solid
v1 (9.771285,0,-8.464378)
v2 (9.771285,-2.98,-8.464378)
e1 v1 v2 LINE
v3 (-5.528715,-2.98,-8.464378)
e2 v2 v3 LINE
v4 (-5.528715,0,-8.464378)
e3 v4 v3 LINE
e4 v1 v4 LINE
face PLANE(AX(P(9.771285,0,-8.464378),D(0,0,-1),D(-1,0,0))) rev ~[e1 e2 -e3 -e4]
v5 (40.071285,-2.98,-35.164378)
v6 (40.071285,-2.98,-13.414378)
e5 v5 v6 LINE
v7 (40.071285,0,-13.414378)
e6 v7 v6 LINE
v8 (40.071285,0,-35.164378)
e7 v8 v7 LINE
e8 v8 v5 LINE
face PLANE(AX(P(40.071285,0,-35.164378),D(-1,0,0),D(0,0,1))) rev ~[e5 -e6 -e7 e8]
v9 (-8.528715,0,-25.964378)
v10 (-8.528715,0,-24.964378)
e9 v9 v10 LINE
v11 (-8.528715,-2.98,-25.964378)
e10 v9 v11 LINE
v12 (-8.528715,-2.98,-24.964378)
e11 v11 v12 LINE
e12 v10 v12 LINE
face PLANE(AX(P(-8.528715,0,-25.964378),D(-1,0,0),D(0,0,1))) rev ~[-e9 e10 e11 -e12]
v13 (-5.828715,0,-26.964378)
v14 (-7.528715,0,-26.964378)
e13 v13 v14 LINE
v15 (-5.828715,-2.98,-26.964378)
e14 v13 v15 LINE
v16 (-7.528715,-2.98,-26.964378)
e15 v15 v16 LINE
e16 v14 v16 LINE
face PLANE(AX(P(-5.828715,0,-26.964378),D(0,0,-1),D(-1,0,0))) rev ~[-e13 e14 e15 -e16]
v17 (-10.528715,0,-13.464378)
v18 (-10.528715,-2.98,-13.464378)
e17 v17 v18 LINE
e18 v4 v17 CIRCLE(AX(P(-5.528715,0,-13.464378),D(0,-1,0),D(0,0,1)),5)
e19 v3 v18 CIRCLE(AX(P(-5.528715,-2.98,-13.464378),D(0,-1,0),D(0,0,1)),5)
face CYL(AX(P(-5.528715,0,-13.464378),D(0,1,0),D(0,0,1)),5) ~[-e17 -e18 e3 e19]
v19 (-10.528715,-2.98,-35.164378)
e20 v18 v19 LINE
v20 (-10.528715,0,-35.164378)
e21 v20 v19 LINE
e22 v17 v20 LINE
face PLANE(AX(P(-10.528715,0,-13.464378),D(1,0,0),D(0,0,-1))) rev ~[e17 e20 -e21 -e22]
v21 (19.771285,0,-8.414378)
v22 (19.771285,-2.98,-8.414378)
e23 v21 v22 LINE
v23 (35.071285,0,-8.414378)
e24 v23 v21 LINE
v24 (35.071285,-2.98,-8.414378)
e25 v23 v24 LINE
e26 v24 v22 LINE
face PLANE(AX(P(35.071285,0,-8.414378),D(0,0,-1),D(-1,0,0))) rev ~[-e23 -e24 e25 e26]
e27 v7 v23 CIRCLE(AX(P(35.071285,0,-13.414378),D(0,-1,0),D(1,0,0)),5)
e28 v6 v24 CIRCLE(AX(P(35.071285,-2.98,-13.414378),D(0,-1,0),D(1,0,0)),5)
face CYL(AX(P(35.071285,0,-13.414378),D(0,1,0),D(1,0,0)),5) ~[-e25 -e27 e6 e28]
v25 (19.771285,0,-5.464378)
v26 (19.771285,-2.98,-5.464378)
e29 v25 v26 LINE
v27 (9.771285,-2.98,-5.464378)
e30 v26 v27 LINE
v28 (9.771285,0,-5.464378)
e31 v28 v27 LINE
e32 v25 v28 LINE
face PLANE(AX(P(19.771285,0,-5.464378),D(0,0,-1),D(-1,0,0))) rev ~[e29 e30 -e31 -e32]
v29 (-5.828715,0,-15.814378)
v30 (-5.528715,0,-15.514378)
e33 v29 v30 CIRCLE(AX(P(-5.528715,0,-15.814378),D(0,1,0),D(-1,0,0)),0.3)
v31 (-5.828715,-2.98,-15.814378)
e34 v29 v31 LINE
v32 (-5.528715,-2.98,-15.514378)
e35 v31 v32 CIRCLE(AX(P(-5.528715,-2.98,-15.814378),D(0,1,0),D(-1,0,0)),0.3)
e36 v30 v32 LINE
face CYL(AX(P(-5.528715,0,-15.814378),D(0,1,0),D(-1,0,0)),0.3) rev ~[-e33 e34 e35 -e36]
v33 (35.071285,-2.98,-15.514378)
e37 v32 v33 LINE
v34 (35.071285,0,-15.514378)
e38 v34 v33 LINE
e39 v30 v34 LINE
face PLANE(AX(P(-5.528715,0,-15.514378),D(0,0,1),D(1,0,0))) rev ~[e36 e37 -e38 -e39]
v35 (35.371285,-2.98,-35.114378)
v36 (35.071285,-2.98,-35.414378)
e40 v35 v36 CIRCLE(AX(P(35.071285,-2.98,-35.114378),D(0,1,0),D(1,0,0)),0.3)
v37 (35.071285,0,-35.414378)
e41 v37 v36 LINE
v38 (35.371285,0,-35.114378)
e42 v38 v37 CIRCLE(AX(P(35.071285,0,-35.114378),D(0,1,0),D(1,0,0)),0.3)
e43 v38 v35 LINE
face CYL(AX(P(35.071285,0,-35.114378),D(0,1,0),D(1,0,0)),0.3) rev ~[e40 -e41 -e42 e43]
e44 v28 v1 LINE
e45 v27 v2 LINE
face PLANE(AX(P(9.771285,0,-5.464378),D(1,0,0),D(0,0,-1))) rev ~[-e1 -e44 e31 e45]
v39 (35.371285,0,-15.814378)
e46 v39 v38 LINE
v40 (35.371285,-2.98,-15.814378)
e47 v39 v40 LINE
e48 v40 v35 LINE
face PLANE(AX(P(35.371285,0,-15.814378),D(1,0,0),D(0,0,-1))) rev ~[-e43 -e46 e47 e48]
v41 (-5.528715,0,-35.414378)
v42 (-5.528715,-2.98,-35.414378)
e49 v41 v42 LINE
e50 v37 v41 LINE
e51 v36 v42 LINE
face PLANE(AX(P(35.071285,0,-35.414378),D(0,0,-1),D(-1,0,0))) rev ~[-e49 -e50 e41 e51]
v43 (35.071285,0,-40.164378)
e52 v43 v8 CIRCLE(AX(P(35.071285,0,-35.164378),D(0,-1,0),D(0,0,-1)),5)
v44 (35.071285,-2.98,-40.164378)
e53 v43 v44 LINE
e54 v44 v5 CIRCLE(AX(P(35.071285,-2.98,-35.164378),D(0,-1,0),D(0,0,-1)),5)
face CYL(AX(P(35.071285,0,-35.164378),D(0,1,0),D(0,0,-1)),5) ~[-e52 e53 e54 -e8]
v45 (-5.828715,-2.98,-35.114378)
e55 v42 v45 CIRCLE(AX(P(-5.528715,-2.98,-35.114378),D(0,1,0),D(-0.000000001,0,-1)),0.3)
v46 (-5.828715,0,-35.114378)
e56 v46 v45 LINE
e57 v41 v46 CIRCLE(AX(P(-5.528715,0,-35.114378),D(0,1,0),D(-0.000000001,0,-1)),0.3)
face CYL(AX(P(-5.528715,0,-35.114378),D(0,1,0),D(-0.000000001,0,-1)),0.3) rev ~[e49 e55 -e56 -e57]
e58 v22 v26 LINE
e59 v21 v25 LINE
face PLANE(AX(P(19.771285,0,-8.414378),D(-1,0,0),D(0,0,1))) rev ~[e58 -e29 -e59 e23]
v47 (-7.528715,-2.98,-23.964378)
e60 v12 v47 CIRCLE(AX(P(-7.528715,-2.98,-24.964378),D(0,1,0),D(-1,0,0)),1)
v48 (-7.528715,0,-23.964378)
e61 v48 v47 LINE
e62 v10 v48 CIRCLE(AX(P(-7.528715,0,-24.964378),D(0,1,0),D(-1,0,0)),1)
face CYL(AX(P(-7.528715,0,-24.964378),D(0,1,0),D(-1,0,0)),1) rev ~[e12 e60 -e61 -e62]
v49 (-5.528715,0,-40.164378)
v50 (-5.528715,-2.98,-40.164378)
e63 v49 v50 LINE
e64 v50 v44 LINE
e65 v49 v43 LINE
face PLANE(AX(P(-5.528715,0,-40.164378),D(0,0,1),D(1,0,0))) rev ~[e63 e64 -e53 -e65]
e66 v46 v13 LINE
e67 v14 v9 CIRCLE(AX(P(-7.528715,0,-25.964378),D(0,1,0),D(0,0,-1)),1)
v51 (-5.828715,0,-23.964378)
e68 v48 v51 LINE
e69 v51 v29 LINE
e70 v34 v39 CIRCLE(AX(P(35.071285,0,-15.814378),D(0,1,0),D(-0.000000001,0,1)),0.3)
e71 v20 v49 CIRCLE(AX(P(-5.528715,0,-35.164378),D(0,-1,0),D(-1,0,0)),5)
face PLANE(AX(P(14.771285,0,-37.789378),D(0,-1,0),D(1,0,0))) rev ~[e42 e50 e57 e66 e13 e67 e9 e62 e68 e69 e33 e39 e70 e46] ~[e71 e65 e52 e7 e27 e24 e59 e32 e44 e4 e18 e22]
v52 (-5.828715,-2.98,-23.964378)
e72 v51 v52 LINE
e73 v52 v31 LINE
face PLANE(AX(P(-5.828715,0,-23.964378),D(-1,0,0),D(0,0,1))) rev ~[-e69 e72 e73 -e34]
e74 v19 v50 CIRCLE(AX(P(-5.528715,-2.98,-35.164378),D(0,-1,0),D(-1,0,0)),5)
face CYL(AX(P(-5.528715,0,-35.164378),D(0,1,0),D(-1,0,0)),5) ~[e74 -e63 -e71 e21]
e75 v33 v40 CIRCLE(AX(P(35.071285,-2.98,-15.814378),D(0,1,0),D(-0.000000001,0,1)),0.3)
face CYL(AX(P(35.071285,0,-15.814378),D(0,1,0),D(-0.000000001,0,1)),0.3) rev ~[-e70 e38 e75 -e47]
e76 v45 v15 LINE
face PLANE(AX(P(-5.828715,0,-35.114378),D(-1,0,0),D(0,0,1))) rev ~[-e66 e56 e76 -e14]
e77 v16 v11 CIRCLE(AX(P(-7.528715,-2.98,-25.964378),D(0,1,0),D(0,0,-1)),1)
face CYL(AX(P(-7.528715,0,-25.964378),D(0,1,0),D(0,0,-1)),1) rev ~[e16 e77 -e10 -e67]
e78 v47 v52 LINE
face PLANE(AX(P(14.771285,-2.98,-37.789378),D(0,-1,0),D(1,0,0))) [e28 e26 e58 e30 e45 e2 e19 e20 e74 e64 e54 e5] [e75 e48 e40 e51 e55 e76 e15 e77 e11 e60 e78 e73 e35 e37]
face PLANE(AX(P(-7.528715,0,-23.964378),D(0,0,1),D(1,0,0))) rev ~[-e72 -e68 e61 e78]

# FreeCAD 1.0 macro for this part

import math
import FreeCAD as App
import Part
import Sketcher
from FreeCAD import Vector

doc = App.newDocument("Part")
body = doc.addObject("PartDesign::Body", "Body")

# Sketch on XZ plane
sketch1 = doc.addObject("Sketcher::SketchObject", "Sketch")
body.addObject(sketch1)
sketch1.AttachmentSupport = (doc.XZ_Plane, [""])
sketch1.MapMode = "FlatFace"
sketch1.addGeometry(Part.ArcOfCircle(Part.Circle(Vector(35.071285, -35.164378, 0), Vector(0, 0, 1), 5), math.radians(-90), math.radians(0)), False)
sketch1.addGeometry(Part.LineSegment(Vector(40.071285, -35.164378, 0), Vector(40.071285, -13.414378, 0)), False)
sketch1.addGeometry(Part.ArcOfCircle(Part.Circle(Vector(35.071285, -13.414378, 0), Vector(0, 0, 1), 5), math.radians(0), math.radians(90)), False)
sketch1.addGeometry(Part.LineSegment(Vector(35.071285, -8.414378, 0), Vector(19.771285, -8.414378, 0)), False)
sketch1.addGeometry(Part.LineSegment(Vector(19.771285, -8.414378, 0), Vector(19.771285, -5.464378, 0)), False)
sketch1.addGeometry(Part.LineSegment(Vector(19.771285, -5.464378, 0), Vector(9.771285, -5.464378, 0)), False)
sketch1.addGeometry(Part.LineSegment(Vector(9.771285, -5.464378, 0), Vector(9.771285, -8.464378, 0)), False)
sketch1.addGeometry(Part.LineSegment(Vector(9.771285, -8.464378, 0), Vector(-5.528715, -8.464378, 0)), False)
sketch1.addGeometry(Part.ArcOfCircle(Part.Circle(Vector(-5.528715, -13.464378, 0), Vector(0, 0, 1), 5), math.radians(90), math.radians(180)), False)
sketch1.addGeometry(Part.LineSegment(Vector(-10.528715, -13.464378, 0), Vector(-10.528715, -35.164378, 0)), False)
sketch1.addGeometry(Part.ArcOfCircle(Part.Circle(Vector(-5.528715, -35.164378, 0), Vector(0, 0, 1), 5), math.radians(180), math.radians(270)), False)
sketch1.addGeometry(Part.LineSegment(Vector(-5.528715, -40.164378, 0), Vector(35.071285, -40.164378, 0)), False)
sketch1.addGeometry(Part.ArcOfCircle(Part.Circle(Vector(-5.528715, -35.114378, 0), Vector(0, 0, 1), 0.3), math.radians(180), math.radians(270)), False)
sketch1.addGeometry(Part.LineSegment(Vector(-5.828715, -35.114378, 0), Vector(-5.828715, -26.964378, 0)), False)
sketch1.addGeometry(Part.LineSegment(Vector(-5.828715, -26.964378, 0), Vector(-7.528715, -26.964378, 0)), False)
sketch1.addGeometry(Part.ArcOfCircle(Part.Circle(Vector(-7.528715, -25.964378, 0), Vector(0, 0, 1), 1), math.radians(180), math.radians(270)), False)
sketch1.addGeometry(Part.LineSegment(Vector(-8.528715, -25.964378, 0), Vector(-8.528715, -24.964378, 0)), False)
sketch1.addGeometry(Part.ArcOfCircle(Part.Circle(Vector(-7.528715, -24.964378, 0), Vector(0, 0, 1), 1), math.radians(90), math.radians(180)), False)
sketch1.addGeometry(Part.LineSegment(Vector(-7.528715, -23.964378, 0), Vector(-5.828715, -23.964378, 0)), False)
sketch1.addGeometry(Part.LineSegment(Vector(-5.828715, -23.964378, 0), Vector(-5.828715, -15.814378, 0)), False)
sketch1.addGeometry(Part.ArcOfCircle(Part.Circle(Vector(-5.528715, -15.814378, 0), Vector(0, 0, 1), 0.3), math.radians(90), math.radians(180)), False)
sketch1.addGeometry(Part.LineSegment(Vector(-5.528715, -15.514378, 0), Vector(35.071285, -15.514378, 0)), False)
sketch1.addGeometry(Part.ArcOfCircle(Part.Circle(Vector(35.071285, -15.814378, 0), Vector(0, 0, 1), 0.3), math.radians(0), math.radians(90)), False)
sketch1.addGeometry(Part.LineSegment(Vector(35.371285, -15.814378, 0), Vector(35.371285, -35.114378, 0)), False)
sketch1.addGeometry(Part.ArcOfCircle(Part.Circle(Vector(35.071285, -35.114378, 0), Vector(0, 0, 1), 0.3), math.radians(-90), math.radians(0)), False)
sketch1.addGeometry(Part.LineSegment(Vector(35.071285, -35.414378, 0), Vector(-5.528715, -35.414378, 0)), False)
sketch1.addConstraint(Sketcher.Constraint("Tangent", 0, 2, 1, 1))
sketch1.addConstraint(Sketcher.Constraint("Tangent", 1, 2, 2, 1))
sketch1.addConstraint(Sketcher.Constraint("Tangent", 2, 2, 3, 1))
sketch1.addConstraint(Sketcher.Constraint("Coincident", 3, 2, 4, 1))
sketch1.addConstraint(Sketcher.Constraint("Coincident", 4, 2, 5, 1))
sketch1.addConstraint(Sketcher.Constraint("Coincident", 5, 2, 6, 1))
sketch1.addConstraint(Sketcher.Constraint("Coincident", 6, 2, 7, 1))
sketch1.addConstraint(Sketcher.Constraint("Tangent", 7, 2, 8, 1))
sketch1.addConstraint(Sketcher.Constraint("Tangent", 8, 2, 9, 1))
sketch1.addConstraint(Sketcher.Constraint("Tangent", 9, 2, 10, 1))
sketch1.addConstraint(Sketcher.Constraint("Tangent", 10, 2, 11, 1))
sketch1.addConstraint(Sketcher.Constraint("Tangent", 11, 2, 0, 1))
sketch1.addConstraint(Sketcher.Constraint("Tangent", 12, 1, 13, 1))
sketch1.addConstraint(Sketcher.Constraint("Coincident", 13, 2, 14, 1))
sketch1.addConstraint(Sketcher.Constraint("Tangent", 14, 2, 15, 2))
sketch1.addConstraint(Sketcher.Constraint("Tangent", 15, 1, 16, 1))
sketch1.addConstraint(Sketcher.Constraint("Tangent", 16, 2, 17, 2))
sketch1.addConstraint(Sketcher.Constraint("Tangent", 17, 1, 18, 1))
sketch1.addConstraint(Sketcher.Constraint("Coincident", 18, 2, 19, 1))
sketch1.addConstraint(Sketcher.Constraint("Tangent", 19, 2, 20, 2))
sketch1.addConstraint(Sketcher.Constraint("Tangent", 20, 1, 21, 1))
sketch1.addConstraint(Sketcher.Constraint("Tangent", 21, 2, 22, 2))
sketch1.addConstraint(Sketcher.Constraint("Tangent", 22, 1, 23, 1))
sketch1.addConstraint(Sketcher.Constraint("Tangent", 23, 2, 24, 2))
sketch1.addConstraint(Sketcher.Constraint("Tangent", 24, 1, 25, 1))
sketch1.addConstraint(Sketcher.Constraint("Tangent", 25, 2, 12, 2))
sketch1.addConstraint(Sketcher.Constraint("Vertical", 1))
sketch1.addConstraint(Sketcher.Constraint("Horizontal", 3))
sketch1.addConstraint(Sketcher.Constraint("Vertical", 4))
sketch1.addConstraint(Sketcher.Constraint("Horizontal", 5))
sketch1.addConstraint(Sketcher.Constraint("Vertical", 6))
sketch1.addConstraint(Sketcher.Constraint("Horizontal", 7))
sketch1.addConstraint(Sketcher.Constraint("Vertical", 9))
sketch1.addConstraint(Sketcher.Constraint("Horizontal", 11))
sketch1.addConstraint(Sketcher.Constraint("Vertical", 13))
sketch1.addConstraint(Sketcher.Constraint("Horizontal", 14))
sketch1.addConstraint(Sketcher.Constraint("Vertical", 16))
sketch1.addConstraint(Sketcher.Constraint("Horizontal", 18))
sketch1.addConstraint(Sketcher.Constraint("Vertical", 19))
sketch1.addConstraint(Sketcher.Constraint("Horizontal", 21))
sketch1.addConstraint(Sketcher.Constraint("Vertical", 23))
sketch1.addConstraint(Sketcher.Constraint("Horizontal", 25))
sketch1.addConstraint(Sketcher.Constraint("Equal", 0, 2))
sketch1.addConstraint(Sketcher.Constraint("Equal", 2, 8))
sketch1.addConstraint(Sketcher.Constraint("Equal", 8, 10))
sketch1.addConstraint(Sketcher.Constraint("Equal", 15, 17))
sketch1.addConstraint(Sketcher.Constraint("Equal", 12, 20))
sketch1.addConstraint(Sketcher.Constraint("Equal", 20, 22))
sketch1.addConstraint(Sketcher.Constraint("Equal", 22, 24))
sketch1.addConstraint(Sketcher.Constraint("Vertical", 10, 3, 12, 3))
sketch1.addConstraint(Sketcher.Constraint("Vertical", 12, 3, 20, 3))
sketch1.addConstraint(Sketcher.Constraint("Vertical", 2, 3, 22, 3))
sketch1.addConstraint(Sketcher.Constraint("Equal", 3, 7))
sketch1.addConstraint(Sketcher.Constraint("Equal", 13, 19))
sketch1.addConstraint(Sketcher.Constraint("Radius", 0, 5.0))
sketch1.addConstraint(Sketcher.Constraint("Radius", 15, 1.0))
sketch1.addConstraint(Sketcher.Constraint("Radius", 12, 0.3))
sketch1.addConstraint(Sketcher.Constraint("DistanceX", 5, 2, 5, 1, 10.0))
sketch1.addConstraint(Sketcher.Constraint("DistanceY", 6, 2, 6, 1, 3.0))
sketch1.addConstraint(Sketcher.Constraint("DistanceY", 16, 1, 16, 2, 1.0))
sketch1.addConstraint(Sketcher.Constraint("DistanceX", 3, 2, 3, 1, 15.3))
sketch1.addConstraint(Sketcher.Constraint("DistanceX", 14, 2, 14, 1, 1.7))
sketch1.addConstraint(Sketcher.Constraint("DistanceY", 9, 2, 9, 1, 21.7))
sketch1.addConstraint(Sketcher.Constraint("DistanceY", 23, 2, 23, 1, 19.3))
sketch1.addConstraint(Sketcher.Constraint("DistanceY", 1, 1, 1, 2, 21.75))
sketch1.addConstraint(Sketcher.Constraint("DistanceY", 12, 3, 2, 3, 21.7))
sketch1.addConstraint(Sketcher.Constraint("DistanceY", 0, 3, -1, 1, 35.164378))
sketch1.addConstraint(Sketcher.Constraint("DistanceX", -1, 1, 0, 3, 35.071285))
pad1 = doc.addObject("PartDesign::Pad", "Pad")
body.addObject(pad1)
pad1.Profile = sketch1
pad1.Length = 2.98

doc.recompute()
